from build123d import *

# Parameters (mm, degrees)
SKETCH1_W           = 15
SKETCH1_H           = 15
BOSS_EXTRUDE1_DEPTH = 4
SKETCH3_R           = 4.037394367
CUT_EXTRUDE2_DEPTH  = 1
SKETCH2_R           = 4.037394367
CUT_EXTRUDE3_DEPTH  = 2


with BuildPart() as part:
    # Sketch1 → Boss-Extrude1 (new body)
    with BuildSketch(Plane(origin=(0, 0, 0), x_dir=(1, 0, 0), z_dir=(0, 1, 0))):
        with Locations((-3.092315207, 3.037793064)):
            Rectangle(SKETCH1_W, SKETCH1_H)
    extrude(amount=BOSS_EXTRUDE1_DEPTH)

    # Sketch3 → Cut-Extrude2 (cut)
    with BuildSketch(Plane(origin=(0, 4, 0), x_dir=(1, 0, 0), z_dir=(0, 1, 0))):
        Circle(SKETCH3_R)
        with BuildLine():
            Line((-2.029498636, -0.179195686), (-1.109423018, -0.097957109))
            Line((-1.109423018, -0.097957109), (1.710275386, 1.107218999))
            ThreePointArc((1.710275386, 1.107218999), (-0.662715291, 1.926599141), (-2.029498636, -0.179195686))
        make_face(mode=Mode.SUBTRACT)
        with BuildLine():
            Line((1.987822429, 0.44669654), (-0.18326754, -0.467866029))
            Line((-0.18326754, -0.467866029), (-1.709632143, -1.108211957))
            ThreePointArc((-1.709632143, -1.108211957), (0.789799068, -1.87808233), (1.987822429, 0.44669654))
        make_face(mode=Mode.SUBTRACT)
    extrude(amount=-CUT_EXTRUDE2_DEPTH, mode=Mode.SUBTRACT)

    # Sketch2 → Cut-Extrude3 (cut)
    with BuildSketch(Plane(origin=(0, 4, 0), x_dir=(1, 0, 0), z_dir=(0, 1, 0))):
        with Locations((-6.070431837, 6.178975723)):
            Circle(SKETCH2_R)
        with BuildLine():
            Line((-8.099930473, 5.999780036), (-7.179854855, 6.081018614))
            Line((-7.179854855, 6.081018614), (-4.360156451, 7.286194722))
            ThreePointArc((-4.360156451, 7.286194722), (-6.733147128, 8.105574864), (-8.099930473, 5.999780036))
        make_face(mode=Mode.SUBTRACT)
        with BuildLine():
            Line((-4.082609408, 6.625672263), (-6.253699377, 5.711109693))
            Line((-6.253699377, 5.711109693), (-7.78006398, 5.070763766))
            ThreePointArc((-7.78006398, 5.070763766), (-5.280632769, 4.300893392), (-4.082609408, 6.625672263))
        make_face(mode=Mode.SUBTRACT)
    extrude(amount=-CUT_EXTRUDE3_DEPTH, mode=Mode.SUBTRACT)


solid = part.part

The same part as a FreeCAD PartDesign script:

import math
import FreeCAD as App
import Part
import Sketcher
from FreeCAD import Vector
Q = App.Units.Quantity


def add_polygon(sketch, points):
    """Adds a closed chain of lines whose ends are joined by coincident constraints."""
    first, n = sketch.GeometryCount, len(points)
    for a, b in zip(points, points[1:] + points[:1]):
        sketch.addGeometry(Part.LineSegment(App.Vector(*a, 0), App.Vector(*b, 0)), False)
    for i in range(n):
        sketch.addConstraint(Sketcher.Constraint("Coincident", first + i, 2, first + (i + 1) % n, 1))

doc = App.newDocument("Part")
params = doc.addObject("Spreadsheet::Sheet", "Params")
for row, (alias, value) in enumerate([
    ("sketch1_width", "15 mm"),
    ("pad1_length", "4 mm"),
    ("pocket1_length", "1 mm"),
    ("pocket2_length", "2 mm"),
], start=1):
    params.set(f"A{row}", alias)
    params.set(f"B{row}", "=" + value)
    params.setAlias(f"B{row}", alias)

body = doc.addObject("PartDesign::Body", "Body")

# Sketch on XZ plane
sketch1 = body.newObject("Sketcher::SketchObject", "Sketch")
sketch1.AttachmentSupport = (doc.getObject("XZ_Plane"), [""])
sketch1.MapMode = "FlatFace"
add_polygon(sketch1, [(-11, -11), (-11, 4), (4, 4), (4, -11)])  # lines 0-3
sketch1.addConstraint([
    Sketcher.Constraint("Vertical", 0),
    Sketcher.Constraint("Horizontal", 1),
    Sketcher.Constraint("Vertical", 2),
    Sketcher.Constraint("Horizontal", 3),
    Sketcher.Constraint("Equal", 3, 0),
    Sketcher.Constraint("DistanceX", 1, 1, 1, 2, Q("15 mm")),
    Sketcher.Constraint("DistanceX", 0, 2, -1, 1, Q("10.592315 mm")),
    Sketcher.Constraint("DistanceY", -1, 1, 0, 2, Q("4.462207 mm")),
])
sketch1.setExpression("Constraints[9]", "Params.sketch1_width")
pad1 = body.newObject("PartDesign::Pad", "Pad")
pad1.Profile = sketch1
pad1.setExpression("Length", "Params.pad1_length")
pad1.Reversed = True

# Sketch on XZ plane
sketch2 = body.newObject("Sketcher::SketchObject", "Sketch001")
sketch2.AttachmentSupport = (doc.getObject("XZ_Plane"), [""])
sketch2.MapMode = "FlatFace"
sketch2.AttachmentOffset = App.Placement(Vector(0, 0, -4), App.Rotation())
sketch2.addGeometry([
    Part.Circle(Vector(0, 0, 0), Vector(0, 0, 1), 4),  # 0
    Part.LineSegment(Vector(-0.2, 0.5, 0), Vector(2, -0.4, 0)),  # 1
    Part.ArcOfCircle(Part.Circle(Vector(0, 0, 0), Vector(0, 0, 1), 2), math.radians(-13), math.radians(147)),  # 2
    Part.LineSegment(Vector(-1.7, 1.1, 0), Vector(-0.2, 0.5, 0)),  # 3
    Part.LineSegment(Vector(-1.1, 0.1, 0), Vector(-2, 0.2, 0)),  # 4
    Part.ArcOfCircle(Part.Circle(Vector(0, 0, 0), Vector(0, 0, 1), 2), math.radians(175), math.radians(327)),  # 5
    Part.LineSegment(Vector(1.7, -1.1, 0), Vector(-1.1, 0.1, 0)),  # 6
], False)
sketch2.addConstraint([
    Sketcher.Constraint("Coincident", 1, 2, 2, 1),
    Sketcher.Constraint("Coincident", 2, 2, 3, 1),
    Sketcher.Constraint("Coincident", 3, 2, 1, 1),
    Sketcher.Constraint("Coincident", 4, 2, 5, 1),
    Sketcher.Constraint("Coincident", 5, 2, 6, 1),
    Sketcher.Constraint("Coincident", 6, 2, 4, 1),
    Sketcher.Constraint("Coincident", 0, 3, -1, 1),
    Sketcher.Constraint("Coincident", 2, 3, -1, 1),
    Sketcher.Constraint("Coincident", 5, 3, -1, 1),
    Sketcher.Constraint("Equal", 2, 5),
    Sketcher.Constraint("Diameter", 0, Q("8.074789 mm")),
    Sketcher.Constraint("Radius", 2, Q("2.037394 mm")),
    Sketcher.Constraint("DistanceX", 4, 2, -1, 1, Q("2.029499 mm")),
    Sketcher.Constraint("DistanceY", -1, 1, 2, 2, Q("1.108212 mm")),
    Sketcher.Constraint("DistanceY", 5, 2, -1, 1, Q("1.107219 mm")),
    Sketcher.Constraint("DistanceY", 1, 2, 2, 2, Q("1.554908 mm")),
    Sketcher.Constraint("DistanceX", 3, 2, 1, 2, Q("2.17109 mm")),
    Sketcher.Constraint("DistanceY", 4, 2, 3, 2, Q("0.28867 mm")),
    Sketcher.Constraint("DistanceY", 6, 2, 4, 2, Q("0.081239 mm")),
    Sketcher.Constraint("Distance", 4, Q("0.923655 mm")),
])
pocket1 = body.newObject("PartDesign::Pocket", "Pocket")
pocket1.Profile = sketch2
pocket1.setExpression("Length", "Params.pocket1_length")
pocket1.Reversed = True

# Sketch on XZ plane
sketch3 = body.newObject("Sketcher::SketchObject", "Sketch002")
sketch3.AttachmentSupport = (doc.getObject("XZ_Plane"), [""])
sketch3.MapMode = "FlatFace"
sketch3.AttachmentOffset = App.Placement(Vector(0, 0, -4), App.Rotation())
sketch3.addGeometry([
    Part.Circle(Vector(-6.1, -6.2, 0), Vector(0, 0, 1), 4),  # 0
    Part.LineSegment(Vector(-6.3, -5.7, 0), Vector(-4.1, -6.6, 0)),  # 1
    Part.ArcOfCircle(Part.Circle(Vector(-6.1, -6.2, 0), Vector(0, 0, 1), 2), math.radians(-13), math.radians(147)),  # 2
    Part.LineSegment(Vector(-7.8, -5.1, 0), Vector(-6.3, -5.7, 0)),  # 3
    Part.LineSegment(Vector(-7.2, -6.1, 0), Vector(-8.1, -6, 0)),  # 4
    Part.ArcOfCircle(Part.Circle(Vector(-6.1, -6.2, 0), Vector(0, 0, 1), 2), math.radians(175), math.radians(327)),  # 5
    Part.LineSegment(Vector(-4.4, -7.3, 0), Vector(-7.2, -6.1, 0)),  # 6
], False)
sketch3.addConstraint([
    Sketcher.Constraint("Coincident", 1, 2, 2, 1),
    Sketcher.Constraint("Coincident", 2, 2, 3, 1),
    Sketcher.Constraint("Coincident", 3, 2, 1, 1),
    Sketcher.Constraint("Coincident", 4, 2, 5, 1),
    Sketcher.Constraint("Coincident", 5, 2, 6, 1),
    Sketcher.Constraint("Coincident", 6, 2, 4, 1),
    Sketcher.Constraint("Coincident", 2, 3, 0, 3),
    Sketcher.Constraint("Coincident", 5, 3, 0, 3),
    Sketcher.Constraint("Equal", 2, 5),
    Sketcher.Constraint("Diameter", 0, Q("8.074789 mm")),
    Sketcher.Constraint("Radius", 2, Q("2.037394 mm")),
    Sketcher.Constraint("DistanceX", 3, 2, -1, 1, Q("6.253699 mm")),
    Sketcher.Constraint("DistanceX", 4, 2, 0, 3, Q("2.029499 mm")),
    Sketcher.Constraint("DistanceX", 0, 3, -1, 1, Q("6.070432 mm")),
    Sketcher.Constraint("DistanceX", 1, 2, -1, 1, Q("4.082609 mm")),
    Sketcher.Constraint("DistanceY", 3, 2, -1, 1, Q("5.71111 mm")),
    Sketcher.Constraint("DistanceY", 4, 2, -1, 1, Q("5.99978 mm")),
    Sketcher.Constraint("DistanceY", 6, 2, -1, 1, Q("6.081019 mm")),
    Sketcher.Constraint("DistanceY", 0, 3, 2, 2, Q("1.108212 mm")),
    Sketcher.Constraint("DistanceY", 5, 2, 2, 3, Q("1.107219 mm")),
    Sketcher.Constraint("Distance", 4, Q("0.923655 mm")),
])
pocket2 = body.newObject("PartDesign::Pocket", "Pocket001")
pocket2.Profile = sketch3
pocket2.setExpression("Length", "Params.pocket2_length")
pocket2.Reversed = True

doc.recompute()
